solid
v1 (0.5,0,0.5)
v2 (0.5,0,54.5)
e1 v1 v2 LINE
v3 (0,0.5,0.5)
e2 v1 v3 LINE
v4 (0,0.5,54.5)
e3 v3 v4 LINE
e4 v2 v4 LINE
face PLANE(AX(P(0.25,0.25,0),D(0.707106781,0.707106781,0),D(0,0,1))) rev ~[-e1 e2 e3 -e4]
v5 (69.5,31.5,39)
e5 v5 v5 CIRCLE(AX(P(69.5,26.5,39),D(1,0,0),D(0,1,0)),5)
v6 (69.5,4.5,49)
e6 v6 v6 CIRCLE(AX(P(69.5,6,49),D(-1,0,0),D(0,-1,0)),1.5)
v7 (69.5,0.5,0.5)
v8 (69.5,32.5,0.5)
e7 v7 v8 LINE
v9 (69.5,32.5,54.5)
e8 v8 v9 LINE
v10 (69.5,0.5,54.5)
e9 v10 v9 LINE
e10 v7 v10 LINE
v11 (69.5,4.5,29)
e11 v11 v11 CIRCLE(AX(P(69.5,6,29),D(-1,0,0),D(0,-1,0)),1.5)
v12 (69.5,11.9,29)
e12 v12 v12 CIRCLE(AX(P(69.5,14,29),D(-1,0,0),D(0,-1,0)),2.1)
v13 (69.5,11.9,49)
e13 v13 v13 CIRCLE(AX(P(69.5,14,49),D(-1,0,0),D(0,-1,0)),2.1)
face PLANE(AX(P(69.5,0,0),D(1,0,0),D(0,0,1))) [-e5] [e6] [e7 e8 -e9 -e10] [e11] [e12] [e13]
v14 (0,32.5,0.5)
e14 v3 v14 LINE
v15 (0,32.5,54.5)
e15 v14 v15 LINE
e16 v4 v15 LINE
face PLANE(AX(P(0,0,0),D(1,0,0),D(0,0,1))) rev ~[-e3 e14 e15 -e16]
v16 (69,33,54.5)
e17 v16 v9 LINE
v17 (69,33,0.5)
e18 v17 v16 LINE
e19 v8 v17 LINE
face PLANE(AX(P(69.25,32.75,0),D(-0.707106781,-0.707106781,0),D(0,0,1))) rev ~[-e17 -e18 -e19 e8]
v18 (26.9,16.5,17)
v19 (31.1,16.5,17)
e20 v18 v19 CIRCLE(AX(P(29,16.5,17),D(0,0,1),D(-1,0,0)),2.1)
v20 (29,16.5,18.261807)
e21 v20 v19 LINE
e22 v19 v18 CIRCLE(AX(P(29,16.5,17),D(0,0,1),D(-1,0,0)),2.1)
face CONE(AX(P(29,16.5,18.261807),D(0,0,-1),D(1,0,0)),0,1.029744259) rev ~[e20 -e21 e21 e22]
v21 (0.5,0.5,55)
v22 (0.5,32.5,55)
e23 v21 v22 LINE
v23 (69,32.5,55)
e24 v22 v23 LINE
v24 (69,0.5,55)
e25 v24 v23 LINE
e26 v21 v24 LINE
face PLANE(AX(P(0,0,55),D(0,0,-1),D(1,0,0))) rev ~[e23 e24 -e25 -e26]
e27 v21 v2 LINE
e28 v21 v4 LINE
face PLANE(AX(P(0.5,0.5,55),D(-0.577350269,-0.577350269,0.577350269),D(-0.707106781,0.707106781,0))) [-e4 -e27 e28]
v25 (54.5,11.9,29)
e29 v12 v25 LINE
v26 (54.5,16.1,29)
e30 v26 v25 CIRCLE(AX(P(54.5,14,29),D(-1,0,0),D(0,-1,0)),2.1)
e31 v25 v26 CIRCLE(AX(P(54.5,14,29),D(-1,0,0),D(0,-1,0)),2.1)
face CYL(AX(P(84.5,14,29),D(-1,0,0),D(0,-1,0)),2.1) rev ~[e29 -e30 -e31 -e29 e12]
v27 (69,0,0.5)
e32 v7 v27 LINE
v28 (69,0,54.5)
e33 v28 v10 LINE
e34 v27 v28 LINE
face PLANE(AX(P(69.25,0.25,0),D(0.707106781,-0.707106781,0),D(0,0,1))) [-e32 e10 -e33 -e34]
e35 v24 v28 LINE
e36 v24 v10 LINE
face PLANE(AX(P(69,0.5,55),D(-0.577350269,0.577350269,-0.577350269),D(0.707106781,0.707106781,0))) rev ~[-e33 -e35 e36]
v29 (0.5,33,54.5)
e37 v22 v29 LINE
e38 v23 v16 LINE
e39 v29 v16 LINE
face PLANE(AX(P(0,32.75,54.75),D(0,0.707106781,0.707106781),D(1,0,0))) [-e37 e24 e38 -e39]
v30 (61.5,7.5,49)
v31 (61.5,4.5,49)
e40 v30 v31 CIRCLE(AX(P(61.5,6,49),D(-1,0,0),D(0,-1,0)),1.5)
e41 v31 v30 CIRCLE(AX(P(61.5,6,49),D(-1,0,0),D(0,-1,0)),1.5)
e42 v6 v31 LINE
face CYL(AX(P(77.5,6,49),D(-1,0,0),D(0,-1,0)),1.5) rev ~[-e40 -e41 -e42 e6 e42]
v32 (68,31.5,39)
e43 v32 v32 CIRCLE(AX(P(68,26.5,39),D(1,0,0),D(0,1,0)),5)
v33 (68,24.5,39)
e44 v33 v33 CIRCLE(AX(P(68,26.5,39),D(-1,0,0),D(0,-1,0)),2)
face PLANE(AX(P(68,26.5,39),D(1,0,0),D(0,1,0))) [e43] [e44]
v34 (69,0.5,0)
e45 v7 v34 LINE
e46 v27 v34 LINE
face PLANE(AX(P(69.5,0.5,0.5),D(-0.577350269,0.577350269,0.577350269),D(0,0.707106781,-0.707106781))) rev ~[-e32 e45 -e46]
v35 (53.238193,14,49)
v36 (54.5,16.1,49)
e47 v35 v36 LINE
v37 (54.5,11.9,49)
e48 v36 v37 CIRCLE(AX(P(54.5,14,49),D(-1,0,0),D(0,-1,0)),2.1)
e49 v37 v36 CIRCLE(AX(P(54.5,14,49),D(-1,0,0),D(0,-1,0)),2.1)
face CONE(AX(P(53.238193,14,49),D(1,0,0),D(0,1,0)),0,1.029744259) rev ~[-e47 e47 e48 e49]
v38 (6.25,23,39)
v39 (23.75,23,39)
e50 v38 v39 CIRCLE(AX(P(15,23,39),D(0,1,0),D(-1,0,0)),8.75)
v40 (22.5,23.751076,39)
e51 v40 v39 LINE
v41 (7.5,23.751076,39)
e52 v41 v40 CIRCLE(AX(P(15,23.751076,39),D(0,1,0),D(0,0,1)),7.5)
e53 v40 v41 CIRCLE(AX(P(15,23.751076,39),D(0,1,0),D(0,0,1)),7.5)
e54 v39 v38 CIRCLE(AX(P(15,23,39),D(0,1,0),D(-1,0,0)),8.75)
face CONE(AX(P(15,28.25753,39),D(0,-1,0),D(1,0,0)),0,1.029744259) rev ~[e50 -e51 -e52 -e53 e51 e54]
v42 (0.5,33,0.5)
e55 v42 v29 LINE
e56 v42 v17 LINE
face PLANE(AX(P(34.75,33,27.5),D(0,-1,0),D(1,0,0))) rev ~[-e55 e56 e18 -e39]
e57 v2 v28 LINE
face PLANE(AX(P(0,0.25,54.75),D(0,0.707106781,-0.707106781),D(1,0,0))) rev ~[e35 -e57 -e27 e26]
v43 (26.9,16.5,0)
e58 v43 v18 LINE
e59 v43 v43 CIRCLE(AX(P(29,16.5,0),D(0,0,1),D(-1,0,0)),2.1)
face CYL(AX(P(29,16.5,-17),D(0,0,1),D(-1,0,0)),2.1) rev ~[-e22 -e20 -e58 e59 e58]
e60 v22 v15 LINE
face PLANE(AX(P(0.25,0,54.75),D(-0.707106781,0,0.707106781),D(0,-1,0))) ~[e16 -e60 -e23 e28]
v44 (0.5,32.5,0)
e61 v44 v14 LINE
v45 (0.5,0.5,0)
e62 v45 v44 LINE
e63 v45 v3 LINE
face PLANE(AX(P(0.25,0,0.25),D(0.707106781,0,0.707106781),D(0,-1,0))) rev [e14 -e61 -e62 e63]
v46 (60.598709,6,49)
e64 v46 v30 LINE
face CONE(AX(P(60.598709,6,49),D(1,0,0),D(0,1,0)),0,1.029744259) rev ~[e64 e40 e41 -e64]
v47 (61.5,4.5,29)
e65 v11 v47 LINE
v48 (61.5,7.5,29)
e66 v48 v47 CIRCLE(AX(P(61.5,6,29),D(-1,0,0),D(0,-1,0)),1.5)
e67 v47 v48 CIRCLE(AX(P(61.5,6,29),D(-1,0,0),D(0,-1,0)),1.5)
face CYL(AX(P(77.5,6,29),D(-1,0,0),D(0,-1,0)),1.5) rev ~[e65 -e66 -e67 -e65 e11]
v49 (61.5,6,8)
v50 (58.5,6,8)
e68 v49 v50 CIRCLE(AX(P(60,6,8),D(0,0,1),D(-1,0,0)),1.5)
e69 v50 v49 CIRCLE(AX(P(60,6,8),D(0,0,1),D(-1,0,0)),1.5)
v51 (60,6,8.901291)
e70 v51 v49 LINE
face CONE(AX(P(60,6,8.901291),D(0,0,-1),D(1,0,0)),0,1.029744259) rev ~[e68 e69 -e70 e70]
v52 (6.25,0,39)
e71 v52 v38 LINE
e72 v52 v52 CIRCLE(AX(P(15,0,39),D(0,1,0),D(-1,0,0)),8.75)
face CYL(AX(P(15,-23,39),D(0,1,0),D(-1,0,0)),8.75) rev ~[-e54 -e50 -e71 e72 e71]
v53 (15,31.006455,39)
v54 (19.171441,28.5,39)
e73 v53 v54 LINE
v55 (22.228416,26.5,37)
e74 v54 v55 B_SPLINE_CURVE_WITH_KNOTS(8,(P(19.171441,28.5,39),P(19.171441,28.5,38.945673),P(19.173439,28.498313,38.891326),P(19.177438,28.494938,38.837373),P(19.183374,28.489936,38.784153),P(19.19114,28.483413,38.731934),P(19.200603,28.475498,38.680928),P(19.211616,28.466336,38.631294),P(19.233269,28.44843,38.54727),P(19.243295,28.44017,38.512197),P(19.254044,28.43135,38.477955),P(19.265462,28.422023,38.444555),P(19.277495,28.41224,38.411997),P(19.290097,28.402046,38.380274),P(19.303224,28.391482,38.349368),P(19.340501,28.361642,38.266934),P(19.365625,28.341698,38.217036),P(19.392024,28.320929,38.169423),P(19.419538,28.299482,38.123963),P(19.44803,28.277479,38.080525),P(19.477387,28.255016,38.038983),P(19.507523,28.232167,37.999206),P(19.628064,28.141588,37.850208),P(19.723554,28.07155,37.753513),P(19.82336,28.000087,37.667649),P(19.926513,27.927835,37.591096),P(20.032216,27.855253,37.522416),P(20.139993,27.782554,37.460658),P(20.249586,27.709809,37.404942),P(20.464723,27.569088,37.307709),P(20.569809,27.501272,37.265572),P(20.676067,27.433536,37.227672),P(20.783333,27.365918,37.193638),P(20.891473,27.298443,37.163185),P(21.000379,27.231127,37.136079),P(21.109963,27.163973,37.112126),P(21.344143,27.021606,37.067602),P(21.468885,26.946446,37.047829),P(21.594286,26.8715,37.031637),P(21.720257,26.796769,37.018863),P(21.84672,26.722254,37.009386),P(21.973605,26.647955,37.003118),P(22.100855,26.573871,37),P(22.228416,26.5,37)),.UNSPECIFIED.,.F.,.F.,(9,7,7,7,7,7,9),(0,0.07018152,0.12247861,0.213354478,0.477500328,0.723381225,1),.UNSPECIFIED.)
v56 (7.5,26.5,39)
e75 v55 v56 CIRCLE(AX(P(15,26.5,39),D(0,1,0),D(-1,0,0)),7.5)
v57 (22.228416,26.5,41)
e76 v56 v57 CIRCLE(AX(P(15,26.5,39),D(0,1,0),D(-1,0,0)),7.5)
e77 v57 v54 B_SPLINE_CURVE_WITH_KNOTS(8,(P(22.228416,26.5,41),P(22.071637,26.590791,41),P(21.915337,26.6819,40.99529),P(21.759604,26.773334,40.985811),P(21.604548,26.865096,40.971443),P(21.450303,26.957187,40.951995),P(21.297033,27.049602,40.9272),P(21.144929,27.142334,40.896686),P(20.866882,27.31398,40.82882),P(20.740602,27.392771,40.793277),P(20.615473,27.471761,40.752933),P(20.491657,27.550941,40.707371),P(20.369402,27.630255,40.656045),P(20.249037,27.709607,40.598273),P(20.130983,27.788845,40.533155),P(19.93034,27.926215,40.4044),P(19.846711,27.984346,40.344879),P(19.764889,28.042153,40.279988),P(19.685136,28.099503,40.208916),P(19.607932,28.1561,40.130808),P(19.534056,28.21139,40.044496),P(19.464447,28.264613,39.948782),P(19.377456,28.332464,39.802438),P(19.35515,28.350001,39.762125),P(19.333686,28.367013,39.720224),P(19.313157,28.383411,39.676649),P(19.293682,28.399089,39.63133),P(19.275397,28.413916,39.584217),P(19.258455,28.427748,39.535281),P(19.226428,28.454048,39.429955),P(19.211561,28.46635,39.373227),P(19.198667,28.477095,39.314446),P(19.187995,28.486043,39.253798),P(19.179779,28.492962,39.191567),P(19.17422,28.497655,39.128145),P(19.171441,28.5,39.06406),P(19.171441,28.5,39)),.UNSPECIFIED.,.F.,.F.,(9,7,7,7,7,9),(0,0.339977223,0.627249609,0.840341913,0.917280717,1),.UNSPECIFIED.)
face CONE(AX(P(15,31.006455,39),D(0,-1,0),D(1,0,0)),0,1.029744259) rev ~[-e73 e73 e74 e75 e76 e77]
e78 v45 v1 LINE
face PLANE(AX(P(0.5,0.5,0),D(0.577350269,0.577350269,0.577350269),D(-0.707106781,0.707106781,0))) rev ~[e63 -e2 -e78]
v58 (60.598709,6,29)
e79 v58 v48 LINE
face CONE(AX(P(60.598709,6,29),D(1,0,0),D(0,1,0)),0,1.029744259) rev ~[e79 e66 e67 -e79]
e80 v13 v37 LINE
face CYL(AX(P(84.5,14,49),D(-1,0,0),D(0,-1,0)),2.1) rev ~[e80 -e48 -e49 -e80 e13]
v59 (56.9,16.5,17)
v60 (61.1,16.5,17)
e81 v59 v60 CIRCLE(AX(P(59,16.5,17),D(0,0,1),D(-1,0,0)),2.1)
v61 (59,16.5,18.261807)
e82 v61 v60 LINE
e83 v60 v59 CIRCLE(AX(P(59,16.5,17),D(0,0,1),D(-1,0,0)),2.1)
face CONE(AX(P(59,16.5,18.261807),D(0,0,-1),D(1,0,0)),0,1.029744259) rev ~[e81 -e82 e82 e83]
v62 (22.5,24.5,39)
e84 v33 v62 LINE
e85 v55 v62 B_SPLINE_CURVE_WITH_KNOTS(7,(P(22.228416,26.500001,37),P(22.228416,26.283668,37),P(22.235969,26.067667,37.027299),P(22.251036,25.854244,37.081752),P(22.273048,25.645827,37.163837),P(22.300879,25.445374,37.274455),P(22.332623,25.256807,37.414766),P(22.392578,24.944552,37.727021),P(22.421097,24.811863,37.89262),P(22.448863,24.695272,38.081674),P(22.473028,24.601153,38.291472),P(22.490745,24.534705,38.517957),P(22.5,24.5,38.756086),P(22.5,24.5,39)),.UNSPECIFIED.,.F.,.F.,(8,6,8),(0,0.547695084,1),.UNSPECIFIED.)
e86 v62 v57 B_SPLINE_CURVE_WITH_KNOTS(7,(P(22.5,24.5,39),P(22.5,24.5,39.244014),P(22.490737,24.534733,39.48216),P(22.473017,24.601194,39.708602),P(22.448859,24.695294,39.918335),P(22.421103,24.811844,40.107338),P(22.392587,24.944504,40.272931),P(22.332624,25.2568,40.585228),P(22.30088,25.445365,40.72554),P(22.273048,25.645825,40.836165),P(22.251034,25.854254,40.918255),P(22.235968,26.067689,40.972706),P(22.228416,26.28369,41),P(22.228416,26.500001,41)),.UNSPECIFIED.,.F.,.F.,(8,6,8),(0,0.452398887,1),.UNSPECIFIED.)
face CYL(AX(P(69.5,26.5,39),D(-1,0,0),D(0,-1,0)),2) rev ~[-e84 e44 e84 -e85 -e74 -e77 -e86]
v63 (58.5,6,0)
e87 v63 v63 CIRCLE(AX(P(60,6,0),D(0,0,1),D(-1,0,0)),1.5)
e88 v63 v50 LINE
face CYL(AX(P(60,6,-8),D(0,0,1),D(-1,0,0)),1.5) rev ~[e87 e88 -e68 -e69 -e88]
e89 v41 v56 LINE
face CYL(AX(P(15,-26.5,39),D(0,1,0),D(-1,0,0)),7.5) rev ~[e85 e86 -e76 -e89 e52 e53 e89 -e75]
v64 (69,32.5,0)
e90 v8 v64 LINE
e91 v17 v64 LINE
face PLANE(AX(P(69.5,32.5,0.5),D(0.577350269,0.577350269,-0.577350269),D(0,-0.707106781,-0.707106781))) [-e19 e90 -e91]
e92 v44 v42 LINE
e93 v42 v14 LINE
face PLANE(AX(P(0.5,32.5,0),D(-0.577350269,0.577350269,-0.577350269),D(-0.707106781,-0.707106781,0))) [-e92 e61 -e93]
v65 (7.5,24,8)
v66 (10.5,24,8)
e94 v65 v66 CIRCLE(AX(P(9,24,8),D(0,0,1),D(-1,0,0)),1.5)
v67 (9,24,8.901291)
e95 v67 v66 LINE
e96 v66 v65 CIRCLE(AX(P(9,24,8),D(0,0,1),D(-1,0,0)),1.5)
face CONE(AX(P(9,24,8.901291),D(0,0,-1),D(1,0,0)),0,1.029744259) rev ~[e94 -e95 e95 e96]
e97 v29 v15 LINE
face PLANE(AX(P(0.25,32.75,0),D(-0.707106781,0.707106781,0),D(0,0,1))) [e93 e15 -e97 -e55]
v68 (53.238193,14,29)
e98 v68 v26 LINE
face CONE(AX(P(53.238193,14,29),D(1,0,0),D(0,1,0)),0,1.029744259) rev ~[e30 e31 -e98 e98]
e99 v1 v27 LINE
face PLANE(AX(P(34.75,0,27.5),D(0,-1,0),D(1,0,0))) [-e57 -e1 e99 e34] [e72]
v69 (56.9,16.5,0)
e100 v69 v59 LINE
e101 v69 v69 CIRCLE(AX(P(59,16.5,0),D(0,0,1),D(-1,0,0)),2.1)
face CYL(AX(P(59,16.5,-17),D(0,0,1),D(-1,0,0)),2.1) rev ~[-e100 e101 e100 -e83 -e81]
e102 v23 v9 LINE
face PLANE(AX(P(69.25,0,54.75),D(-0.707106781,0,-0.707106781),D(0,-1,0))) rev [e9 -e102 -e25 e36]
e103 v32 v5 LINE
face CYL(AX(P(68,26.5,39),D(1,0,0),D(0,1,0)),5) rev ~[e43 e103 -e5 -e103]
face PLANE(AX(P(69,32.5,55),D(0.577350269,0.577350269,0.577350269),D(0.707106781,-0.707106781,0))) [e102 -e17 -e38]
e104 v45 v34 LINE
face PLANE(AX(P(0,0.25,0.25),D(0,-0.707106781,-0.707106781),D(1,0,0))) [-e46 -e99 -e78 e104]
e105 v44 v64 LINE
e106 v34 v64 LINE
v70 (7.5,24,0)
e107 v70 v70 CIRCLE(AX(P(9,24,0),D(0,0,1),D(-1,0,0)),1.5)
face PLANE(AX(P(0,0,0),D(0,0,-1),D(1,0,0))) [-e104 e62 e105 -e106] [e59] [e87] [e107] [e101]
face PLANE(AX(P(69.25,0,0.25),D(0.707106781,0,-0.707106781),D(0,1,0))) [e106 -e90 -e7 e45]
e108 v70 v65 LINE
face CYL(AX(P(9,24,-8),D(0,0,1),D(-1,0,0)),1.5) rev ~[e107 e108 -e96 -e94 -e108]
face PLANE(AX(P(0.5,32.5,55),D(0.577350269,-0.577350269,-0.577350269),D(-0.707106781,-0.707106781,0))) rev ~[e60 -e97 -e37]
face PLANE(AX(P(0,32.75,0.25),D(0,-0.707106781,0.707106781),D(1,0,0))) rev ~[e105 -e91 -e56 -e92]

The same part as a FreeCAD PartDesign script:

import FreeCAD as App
import Part
import Sketcher
from FreeCAD import Vector

doc = App.newDocument("Part")
body = doc.addObject("PartDesign::Body", "Body")

# Sketch on XZ plane
sketch1 = doc.addObject("Sketcher::SketchObject", "Sketch")
body.addObject(sketch1)
sketch1.AttachmentSupport = (doc.XZ_Plane, [""])
sketch1.MapMode = "FlatFace"
sketch1.addGeometry([
    Part.LineSegment(Vector(0, 55, 0), Vector(0, 0, 0)),
    Part.LineSegment(Vector(0, 0, 0), Vector(70, 0, 0)),
    Part.LineSegment(Vector(70, 0, 0), Vector(70, 55, 0)),
    Part.LineSegment(Vector(70, 55, 0), Vector(0, 55, 0)),
], False)
sketch1.addConstraint([
    Sketcher.Constraint("Coincident", 0, 2, 1, 1),
    Sketcher.Constraint("Coincident", 1, 2, 2, 1),
    Sketcher.Constraint("Coincident", 2, 2, 3, 1),
    Sketcher.Constraint("Coincident", 3, 2, 0, 1),
    Sketcher.Constraint("Vertical", 0),
    Sketcher.Constraint("Horizontal", 1),
    Sketcher.Constraint("Vertical", 2),
    Sketcher.Constraint("Horizontal", 3),
    Sketcher.Constraint("Coincident", 0, 2, -1, 1),
    Sketcher.Constraint("DistanceY", 0, 2, 0, 1, 55.0),
    Sketcher.Constraint("DistanceX", 1, 1, 1, 2, 69.5),
])
pad1 = doc.addObject("PartDesign::Pad", "Pad")
body.addObject(pad1)
pad1.Profile = sketch1
pad1.Length = 33
pad1.Reversed = True
doc.recompute()

chamfer = doc.addObject("PartDesign::Chamfer", "Chamfer")
body.addObject(chamfer)
chamfer.Base = (pad1, ["Edge1"])
chamfer.UseAllEdges = True
chamfer.Size = 0.5

# Sketch on XZ plane
sketch2 = doc.addObject("Sketcher::SketchObject", "Sketch001")
body.addObject(sketch2)
sketch2.AttachmentSupport = (doc.XZ_Plane, [""])
sketch2.MapMode = "FlatFace"
sketch2.addGeometry(Part.Circle(Vector(15, 39, 0), Vector(0, 0, 1), 9), False)
sketch2.addConstraint([
    Sketcher.Constraint("Diameter", 0, 17.5),
    Sketcher.Constraint("DistanceX", -1, 1, 0, 3, 15.0),
    Sketcher.Constraint("DistanceY", -1, 1, 0, 3, 39.0),
])
doc.recompute()
hole = doc.addObject("PartDesign::Hole", "Hole")
body.addObject(hole)
hole.Profile = sketch2
hole.ThreadType = "None"
hole.Diameter = 17.5
hole.DepthType = "Dimension"
hole.Depth = 23
hole.DrillPoint = "Angled"
hole.DrillPointAngle = 118

# Sketch on XZ plane
sketch3 = doc.addObject("Sketcher::SketchObject", "Sketch002")
body.addObject(sketch3)
sketch3.AttachmentSupport = (doc.XZ_Plane, [""])
sketch3.MapMode = "FlatFace"
sketch3.addGeometry(Part.Circle(Vector(15, 39, 0), Vector(0, 0, 1), 8), False)
sketch3.addConstraint([
    Sketcher.Constraint("Diameter", 0, 15.0),
    Sketcher.Constraint("DistanceX", -1, 1, 0, 3, 15.0),
    Sketcher.Constraint("DistanceY", -1, 1, 0, 3, 39.0),
])
doc.recompute()
hole2 = doc.addObject("PartDesign::Hole", "Hole001")
body.addObject(hole2)
hole2.Profile = sketch3
hole2.ThreadType = "None"
hole2.Diameter = 15
hole2.DepthType = "Dimension"
hole2.Depth = 26.5
hole2.DrillPoint = "Angled"
hole2.DrillPointAngle = 118

# Sketch on YZ plane
sketch4 = doc.addObject("Sketcher::SketchObject", "Sketch003")
body.addObject(sketch4)
sketch4.AttachmentSupport = (doc.YZ_Plane, [""])
sketch4.MapMode = "FlatFace"
sketch4.AttachmentOffset = App.Placement(Vector(0, 0, 69.5), App.Rotation())
sketch4.addGeometry(Part.Circle(Vector(26.5, 39, 0), Vector(0, 0, 1), 2), False)
sketch4.addConstraint([
    Sketcher.Constraint("Diameter", 0, 4.0),
    Sketcher.Constraint("DistanceY", -1, 1, 0, 3, 39.0),
    Sketcher.Constraint("DistanceX", -1, 1, 0, 3, 26.5),
])
doc.recompute()
hole3 = doc.addObject("PartDesign::Hole", "Hole002")
body.addObject(hole3)
hole3.Profile = sketch4
hole3.ThreadType = "None"
hole3.Diameter = 4
hole3.DepthType = "Dimension"
hole3.Depth = 54.5
hole3.DrillPoint = "Angled"
hole3.DrillPointAngle = 118
hole3.HoleCutType = "Counterbore"
hole3.HoleCutDiameter = 10
hole3.HoleCutDepth = 1.5

# Sketch on YZ plane
sketch5 = doc.addObject("Sketcher::SketchObject", "Sketch004")
body.addObject(sketch5)
sketch5.AttachmentSupport = (doc.YZ_Plane, [""])
sketch5.MapMode = "FlatFace"
sketch5.AttachmentOffset = App.Placement(Vector(0, 0, 69.5), App.Rotation())
sketch5.addGeometry([
    Part.Circle(Vector(14, 49, 0), Vector(0, 0, 1), 2.1),
    Part.Circle(Vector(14, 29, 0), Vector(0, 0, 1), 2.1),
], False)
sketch5.addConstraint([
    Sketcher.Constraint("Equal", 0, 1),
    Sketcher.Constraint("Vertical", 0, 3, 1, 3),
    Sketcher.Constraint("Diameter", 0, 4.2),
    Sketcher.Constraint("DistanceX", -1, 1, 0, 3, 14.0),
    Sketcher.Constraint("DistanceY", -1, 1, 0, 3, 49.0),
    Sketcher.Constraint("DistanceY", -1, 1, 1, 3, 29.0),
])
doc.recompute()
hole4 = doc.addObject("PartDesign::Hole", "Hole003")
body.addObject(hole4)
hole4.Profile = sketch5
hole4.ThreadType = "None"
hole4.Diameter = 4.2
hole4.DepthType = "Dimension"
hole4.Depth = 15
hole4.DrillPoint = "Angled"
hole4.DrillPointAngle = 118

# Sketch on YZ plane
sketch6 = doc.addObject("Sketcher::SketchObject", "Sketch005")
body.addObject(sketch6)
sketch6.AttachmentSupport = (doc.YZ_Plane, [""])
sketch6.MapMode = "FlatFace"
sketch6.AttachmentOffset = App.Placement(Vector(0, 0, 69.5), App.Rotation())
sketch6.addGeometry([
    Part.Circle(Vector(6, 49, 0), Vector(0, 0, 1), 1.5),
    Part.Circle(Vector(6, 29, 0), Vector(0, 0, 1), 1.5),
], False)
sketch6.addConstraint([
    Sketcher.Constraint("Equal", 0, 1),
    Sketcher.Constraint("Vertical", 0, 3, 1, 3),
    Sketcher.Constraint("Diameter", 0, 3.0),
    Sketcher.Constraint("DistanceX", -1, 1, 0, 3, 6.0),
    Sketcher.Constraint("DistanceY", -1, 1, 0, 3, 49.0),
    Sketcher.Constraint("DistanceY", -1, 1, 1, 3, 29.0),
])
doc.recompute()
hole5 = doc.addObject("PartDesign::Hole", "Hole004")
body.addObject(hole5)
hole5.Profile = sketch6
hole5.ThreadType = "None"
hole5.Diameter = 3
hole5.DepthType = "Dimension"
hole5.Depth = 8
hole5.DrillPoint = "Angled"
hole5.DrillPointAngle = 118

# Sketch on XY plane
sketch7 = doc.addObject("Sketcher::SketchObject", "Sketch006")
body.addObject(sketch7)
sketch7.AttachmentSupport = (doc.XY_Plane, [""])
sketch7.MapMode = "FlatFace"
sketch7.addGeometry([
    Part.Circle(Vector(9, 24, 0), Vector(0, 0, 1), 1.5),
    Part.Circle(Vector(60, 6, 0), Vector(0, 0, 1), 1.5),
], False)
sketch7.addConstraint([
    Sketcher.Constraint("Equal", 0, 1),
    Sketcher.Constraint("Diameter", 0, 3.0),
    Sketcher.Constraint("DistanceX", -1, 1, 0, 3, 9.0),
    Sketcher.Constraint("DistanceY", -1, 1, 0, 3, 24.0),
    Sketcher.Constraint("DistanceX", -1, 1, 1, 3, 60.0),
    Sketcher.Constraint("DistanceY", -1, 1, 1, 3, 6.0),
])
doc.recompute()
hole6 = doc.addObject("PartDesign::Hole", "Hole005")
body.addObject(hole6)
hole6.Profile = sketch7
hole6.ThreadType = "None"
hole6.Diameter = 3
hole6.DepthType = "Dimension"
hole6.Depth = 8
hole6.DrillPoint = "Angled"
hole6.DrillPointAngle = 118
hole6.Reversed = True

# Sketch on XY plane
sketch8 = doc.addObject("Sketcher::SketchObject", "Sketch007")
body.addObject(sketch8)
sketch8.AttachmentSupport = (doc.XY_Plane, [""])
sketch8.MapMode = "FlatFace"
sketch8.addGeometry([
    Part.Circle(Vector(29, 16.5, 0), Vector(0, 0, 1), 2.1),
    Part.Circle(Vector(59, 16.5, 0), Vector(0, 0, 1), 2.1),
], False)
sketch8.addConstraint([
    Sketcher.Constraint("Equal", 0, 1),
    Sketcher.Constraint("Horizontal", 0, 3, 1, 3),
    Sketcher.Constraint("Diameter", 0, 4.2),
    Sketcher.Constraint("DistanceX", -1, 1, 0, 3, 29.0),
    Sketcher.Constraint("DistanceX", -1, 1, 1, 3, 59.0),
    Sketcher.Constraint("DistanceY", -1, 1, 0, 3, 16.5),
])
doc.recompute()
hole7 = doc.addObject("PartDesign::Hole", "Hole006")
body.addObject(hole7)
hole7.Profile = sketch8
hole7.ThreadType = "None"
hole7.Diameter = 4.2
hole7.DepthType = "Dimension"
hole7.Depth = 17
hole7.DrillPoint = "Angled"
hole7.DrillPointAngle = 118
hole7.Reversed = True

doc.recompute()
